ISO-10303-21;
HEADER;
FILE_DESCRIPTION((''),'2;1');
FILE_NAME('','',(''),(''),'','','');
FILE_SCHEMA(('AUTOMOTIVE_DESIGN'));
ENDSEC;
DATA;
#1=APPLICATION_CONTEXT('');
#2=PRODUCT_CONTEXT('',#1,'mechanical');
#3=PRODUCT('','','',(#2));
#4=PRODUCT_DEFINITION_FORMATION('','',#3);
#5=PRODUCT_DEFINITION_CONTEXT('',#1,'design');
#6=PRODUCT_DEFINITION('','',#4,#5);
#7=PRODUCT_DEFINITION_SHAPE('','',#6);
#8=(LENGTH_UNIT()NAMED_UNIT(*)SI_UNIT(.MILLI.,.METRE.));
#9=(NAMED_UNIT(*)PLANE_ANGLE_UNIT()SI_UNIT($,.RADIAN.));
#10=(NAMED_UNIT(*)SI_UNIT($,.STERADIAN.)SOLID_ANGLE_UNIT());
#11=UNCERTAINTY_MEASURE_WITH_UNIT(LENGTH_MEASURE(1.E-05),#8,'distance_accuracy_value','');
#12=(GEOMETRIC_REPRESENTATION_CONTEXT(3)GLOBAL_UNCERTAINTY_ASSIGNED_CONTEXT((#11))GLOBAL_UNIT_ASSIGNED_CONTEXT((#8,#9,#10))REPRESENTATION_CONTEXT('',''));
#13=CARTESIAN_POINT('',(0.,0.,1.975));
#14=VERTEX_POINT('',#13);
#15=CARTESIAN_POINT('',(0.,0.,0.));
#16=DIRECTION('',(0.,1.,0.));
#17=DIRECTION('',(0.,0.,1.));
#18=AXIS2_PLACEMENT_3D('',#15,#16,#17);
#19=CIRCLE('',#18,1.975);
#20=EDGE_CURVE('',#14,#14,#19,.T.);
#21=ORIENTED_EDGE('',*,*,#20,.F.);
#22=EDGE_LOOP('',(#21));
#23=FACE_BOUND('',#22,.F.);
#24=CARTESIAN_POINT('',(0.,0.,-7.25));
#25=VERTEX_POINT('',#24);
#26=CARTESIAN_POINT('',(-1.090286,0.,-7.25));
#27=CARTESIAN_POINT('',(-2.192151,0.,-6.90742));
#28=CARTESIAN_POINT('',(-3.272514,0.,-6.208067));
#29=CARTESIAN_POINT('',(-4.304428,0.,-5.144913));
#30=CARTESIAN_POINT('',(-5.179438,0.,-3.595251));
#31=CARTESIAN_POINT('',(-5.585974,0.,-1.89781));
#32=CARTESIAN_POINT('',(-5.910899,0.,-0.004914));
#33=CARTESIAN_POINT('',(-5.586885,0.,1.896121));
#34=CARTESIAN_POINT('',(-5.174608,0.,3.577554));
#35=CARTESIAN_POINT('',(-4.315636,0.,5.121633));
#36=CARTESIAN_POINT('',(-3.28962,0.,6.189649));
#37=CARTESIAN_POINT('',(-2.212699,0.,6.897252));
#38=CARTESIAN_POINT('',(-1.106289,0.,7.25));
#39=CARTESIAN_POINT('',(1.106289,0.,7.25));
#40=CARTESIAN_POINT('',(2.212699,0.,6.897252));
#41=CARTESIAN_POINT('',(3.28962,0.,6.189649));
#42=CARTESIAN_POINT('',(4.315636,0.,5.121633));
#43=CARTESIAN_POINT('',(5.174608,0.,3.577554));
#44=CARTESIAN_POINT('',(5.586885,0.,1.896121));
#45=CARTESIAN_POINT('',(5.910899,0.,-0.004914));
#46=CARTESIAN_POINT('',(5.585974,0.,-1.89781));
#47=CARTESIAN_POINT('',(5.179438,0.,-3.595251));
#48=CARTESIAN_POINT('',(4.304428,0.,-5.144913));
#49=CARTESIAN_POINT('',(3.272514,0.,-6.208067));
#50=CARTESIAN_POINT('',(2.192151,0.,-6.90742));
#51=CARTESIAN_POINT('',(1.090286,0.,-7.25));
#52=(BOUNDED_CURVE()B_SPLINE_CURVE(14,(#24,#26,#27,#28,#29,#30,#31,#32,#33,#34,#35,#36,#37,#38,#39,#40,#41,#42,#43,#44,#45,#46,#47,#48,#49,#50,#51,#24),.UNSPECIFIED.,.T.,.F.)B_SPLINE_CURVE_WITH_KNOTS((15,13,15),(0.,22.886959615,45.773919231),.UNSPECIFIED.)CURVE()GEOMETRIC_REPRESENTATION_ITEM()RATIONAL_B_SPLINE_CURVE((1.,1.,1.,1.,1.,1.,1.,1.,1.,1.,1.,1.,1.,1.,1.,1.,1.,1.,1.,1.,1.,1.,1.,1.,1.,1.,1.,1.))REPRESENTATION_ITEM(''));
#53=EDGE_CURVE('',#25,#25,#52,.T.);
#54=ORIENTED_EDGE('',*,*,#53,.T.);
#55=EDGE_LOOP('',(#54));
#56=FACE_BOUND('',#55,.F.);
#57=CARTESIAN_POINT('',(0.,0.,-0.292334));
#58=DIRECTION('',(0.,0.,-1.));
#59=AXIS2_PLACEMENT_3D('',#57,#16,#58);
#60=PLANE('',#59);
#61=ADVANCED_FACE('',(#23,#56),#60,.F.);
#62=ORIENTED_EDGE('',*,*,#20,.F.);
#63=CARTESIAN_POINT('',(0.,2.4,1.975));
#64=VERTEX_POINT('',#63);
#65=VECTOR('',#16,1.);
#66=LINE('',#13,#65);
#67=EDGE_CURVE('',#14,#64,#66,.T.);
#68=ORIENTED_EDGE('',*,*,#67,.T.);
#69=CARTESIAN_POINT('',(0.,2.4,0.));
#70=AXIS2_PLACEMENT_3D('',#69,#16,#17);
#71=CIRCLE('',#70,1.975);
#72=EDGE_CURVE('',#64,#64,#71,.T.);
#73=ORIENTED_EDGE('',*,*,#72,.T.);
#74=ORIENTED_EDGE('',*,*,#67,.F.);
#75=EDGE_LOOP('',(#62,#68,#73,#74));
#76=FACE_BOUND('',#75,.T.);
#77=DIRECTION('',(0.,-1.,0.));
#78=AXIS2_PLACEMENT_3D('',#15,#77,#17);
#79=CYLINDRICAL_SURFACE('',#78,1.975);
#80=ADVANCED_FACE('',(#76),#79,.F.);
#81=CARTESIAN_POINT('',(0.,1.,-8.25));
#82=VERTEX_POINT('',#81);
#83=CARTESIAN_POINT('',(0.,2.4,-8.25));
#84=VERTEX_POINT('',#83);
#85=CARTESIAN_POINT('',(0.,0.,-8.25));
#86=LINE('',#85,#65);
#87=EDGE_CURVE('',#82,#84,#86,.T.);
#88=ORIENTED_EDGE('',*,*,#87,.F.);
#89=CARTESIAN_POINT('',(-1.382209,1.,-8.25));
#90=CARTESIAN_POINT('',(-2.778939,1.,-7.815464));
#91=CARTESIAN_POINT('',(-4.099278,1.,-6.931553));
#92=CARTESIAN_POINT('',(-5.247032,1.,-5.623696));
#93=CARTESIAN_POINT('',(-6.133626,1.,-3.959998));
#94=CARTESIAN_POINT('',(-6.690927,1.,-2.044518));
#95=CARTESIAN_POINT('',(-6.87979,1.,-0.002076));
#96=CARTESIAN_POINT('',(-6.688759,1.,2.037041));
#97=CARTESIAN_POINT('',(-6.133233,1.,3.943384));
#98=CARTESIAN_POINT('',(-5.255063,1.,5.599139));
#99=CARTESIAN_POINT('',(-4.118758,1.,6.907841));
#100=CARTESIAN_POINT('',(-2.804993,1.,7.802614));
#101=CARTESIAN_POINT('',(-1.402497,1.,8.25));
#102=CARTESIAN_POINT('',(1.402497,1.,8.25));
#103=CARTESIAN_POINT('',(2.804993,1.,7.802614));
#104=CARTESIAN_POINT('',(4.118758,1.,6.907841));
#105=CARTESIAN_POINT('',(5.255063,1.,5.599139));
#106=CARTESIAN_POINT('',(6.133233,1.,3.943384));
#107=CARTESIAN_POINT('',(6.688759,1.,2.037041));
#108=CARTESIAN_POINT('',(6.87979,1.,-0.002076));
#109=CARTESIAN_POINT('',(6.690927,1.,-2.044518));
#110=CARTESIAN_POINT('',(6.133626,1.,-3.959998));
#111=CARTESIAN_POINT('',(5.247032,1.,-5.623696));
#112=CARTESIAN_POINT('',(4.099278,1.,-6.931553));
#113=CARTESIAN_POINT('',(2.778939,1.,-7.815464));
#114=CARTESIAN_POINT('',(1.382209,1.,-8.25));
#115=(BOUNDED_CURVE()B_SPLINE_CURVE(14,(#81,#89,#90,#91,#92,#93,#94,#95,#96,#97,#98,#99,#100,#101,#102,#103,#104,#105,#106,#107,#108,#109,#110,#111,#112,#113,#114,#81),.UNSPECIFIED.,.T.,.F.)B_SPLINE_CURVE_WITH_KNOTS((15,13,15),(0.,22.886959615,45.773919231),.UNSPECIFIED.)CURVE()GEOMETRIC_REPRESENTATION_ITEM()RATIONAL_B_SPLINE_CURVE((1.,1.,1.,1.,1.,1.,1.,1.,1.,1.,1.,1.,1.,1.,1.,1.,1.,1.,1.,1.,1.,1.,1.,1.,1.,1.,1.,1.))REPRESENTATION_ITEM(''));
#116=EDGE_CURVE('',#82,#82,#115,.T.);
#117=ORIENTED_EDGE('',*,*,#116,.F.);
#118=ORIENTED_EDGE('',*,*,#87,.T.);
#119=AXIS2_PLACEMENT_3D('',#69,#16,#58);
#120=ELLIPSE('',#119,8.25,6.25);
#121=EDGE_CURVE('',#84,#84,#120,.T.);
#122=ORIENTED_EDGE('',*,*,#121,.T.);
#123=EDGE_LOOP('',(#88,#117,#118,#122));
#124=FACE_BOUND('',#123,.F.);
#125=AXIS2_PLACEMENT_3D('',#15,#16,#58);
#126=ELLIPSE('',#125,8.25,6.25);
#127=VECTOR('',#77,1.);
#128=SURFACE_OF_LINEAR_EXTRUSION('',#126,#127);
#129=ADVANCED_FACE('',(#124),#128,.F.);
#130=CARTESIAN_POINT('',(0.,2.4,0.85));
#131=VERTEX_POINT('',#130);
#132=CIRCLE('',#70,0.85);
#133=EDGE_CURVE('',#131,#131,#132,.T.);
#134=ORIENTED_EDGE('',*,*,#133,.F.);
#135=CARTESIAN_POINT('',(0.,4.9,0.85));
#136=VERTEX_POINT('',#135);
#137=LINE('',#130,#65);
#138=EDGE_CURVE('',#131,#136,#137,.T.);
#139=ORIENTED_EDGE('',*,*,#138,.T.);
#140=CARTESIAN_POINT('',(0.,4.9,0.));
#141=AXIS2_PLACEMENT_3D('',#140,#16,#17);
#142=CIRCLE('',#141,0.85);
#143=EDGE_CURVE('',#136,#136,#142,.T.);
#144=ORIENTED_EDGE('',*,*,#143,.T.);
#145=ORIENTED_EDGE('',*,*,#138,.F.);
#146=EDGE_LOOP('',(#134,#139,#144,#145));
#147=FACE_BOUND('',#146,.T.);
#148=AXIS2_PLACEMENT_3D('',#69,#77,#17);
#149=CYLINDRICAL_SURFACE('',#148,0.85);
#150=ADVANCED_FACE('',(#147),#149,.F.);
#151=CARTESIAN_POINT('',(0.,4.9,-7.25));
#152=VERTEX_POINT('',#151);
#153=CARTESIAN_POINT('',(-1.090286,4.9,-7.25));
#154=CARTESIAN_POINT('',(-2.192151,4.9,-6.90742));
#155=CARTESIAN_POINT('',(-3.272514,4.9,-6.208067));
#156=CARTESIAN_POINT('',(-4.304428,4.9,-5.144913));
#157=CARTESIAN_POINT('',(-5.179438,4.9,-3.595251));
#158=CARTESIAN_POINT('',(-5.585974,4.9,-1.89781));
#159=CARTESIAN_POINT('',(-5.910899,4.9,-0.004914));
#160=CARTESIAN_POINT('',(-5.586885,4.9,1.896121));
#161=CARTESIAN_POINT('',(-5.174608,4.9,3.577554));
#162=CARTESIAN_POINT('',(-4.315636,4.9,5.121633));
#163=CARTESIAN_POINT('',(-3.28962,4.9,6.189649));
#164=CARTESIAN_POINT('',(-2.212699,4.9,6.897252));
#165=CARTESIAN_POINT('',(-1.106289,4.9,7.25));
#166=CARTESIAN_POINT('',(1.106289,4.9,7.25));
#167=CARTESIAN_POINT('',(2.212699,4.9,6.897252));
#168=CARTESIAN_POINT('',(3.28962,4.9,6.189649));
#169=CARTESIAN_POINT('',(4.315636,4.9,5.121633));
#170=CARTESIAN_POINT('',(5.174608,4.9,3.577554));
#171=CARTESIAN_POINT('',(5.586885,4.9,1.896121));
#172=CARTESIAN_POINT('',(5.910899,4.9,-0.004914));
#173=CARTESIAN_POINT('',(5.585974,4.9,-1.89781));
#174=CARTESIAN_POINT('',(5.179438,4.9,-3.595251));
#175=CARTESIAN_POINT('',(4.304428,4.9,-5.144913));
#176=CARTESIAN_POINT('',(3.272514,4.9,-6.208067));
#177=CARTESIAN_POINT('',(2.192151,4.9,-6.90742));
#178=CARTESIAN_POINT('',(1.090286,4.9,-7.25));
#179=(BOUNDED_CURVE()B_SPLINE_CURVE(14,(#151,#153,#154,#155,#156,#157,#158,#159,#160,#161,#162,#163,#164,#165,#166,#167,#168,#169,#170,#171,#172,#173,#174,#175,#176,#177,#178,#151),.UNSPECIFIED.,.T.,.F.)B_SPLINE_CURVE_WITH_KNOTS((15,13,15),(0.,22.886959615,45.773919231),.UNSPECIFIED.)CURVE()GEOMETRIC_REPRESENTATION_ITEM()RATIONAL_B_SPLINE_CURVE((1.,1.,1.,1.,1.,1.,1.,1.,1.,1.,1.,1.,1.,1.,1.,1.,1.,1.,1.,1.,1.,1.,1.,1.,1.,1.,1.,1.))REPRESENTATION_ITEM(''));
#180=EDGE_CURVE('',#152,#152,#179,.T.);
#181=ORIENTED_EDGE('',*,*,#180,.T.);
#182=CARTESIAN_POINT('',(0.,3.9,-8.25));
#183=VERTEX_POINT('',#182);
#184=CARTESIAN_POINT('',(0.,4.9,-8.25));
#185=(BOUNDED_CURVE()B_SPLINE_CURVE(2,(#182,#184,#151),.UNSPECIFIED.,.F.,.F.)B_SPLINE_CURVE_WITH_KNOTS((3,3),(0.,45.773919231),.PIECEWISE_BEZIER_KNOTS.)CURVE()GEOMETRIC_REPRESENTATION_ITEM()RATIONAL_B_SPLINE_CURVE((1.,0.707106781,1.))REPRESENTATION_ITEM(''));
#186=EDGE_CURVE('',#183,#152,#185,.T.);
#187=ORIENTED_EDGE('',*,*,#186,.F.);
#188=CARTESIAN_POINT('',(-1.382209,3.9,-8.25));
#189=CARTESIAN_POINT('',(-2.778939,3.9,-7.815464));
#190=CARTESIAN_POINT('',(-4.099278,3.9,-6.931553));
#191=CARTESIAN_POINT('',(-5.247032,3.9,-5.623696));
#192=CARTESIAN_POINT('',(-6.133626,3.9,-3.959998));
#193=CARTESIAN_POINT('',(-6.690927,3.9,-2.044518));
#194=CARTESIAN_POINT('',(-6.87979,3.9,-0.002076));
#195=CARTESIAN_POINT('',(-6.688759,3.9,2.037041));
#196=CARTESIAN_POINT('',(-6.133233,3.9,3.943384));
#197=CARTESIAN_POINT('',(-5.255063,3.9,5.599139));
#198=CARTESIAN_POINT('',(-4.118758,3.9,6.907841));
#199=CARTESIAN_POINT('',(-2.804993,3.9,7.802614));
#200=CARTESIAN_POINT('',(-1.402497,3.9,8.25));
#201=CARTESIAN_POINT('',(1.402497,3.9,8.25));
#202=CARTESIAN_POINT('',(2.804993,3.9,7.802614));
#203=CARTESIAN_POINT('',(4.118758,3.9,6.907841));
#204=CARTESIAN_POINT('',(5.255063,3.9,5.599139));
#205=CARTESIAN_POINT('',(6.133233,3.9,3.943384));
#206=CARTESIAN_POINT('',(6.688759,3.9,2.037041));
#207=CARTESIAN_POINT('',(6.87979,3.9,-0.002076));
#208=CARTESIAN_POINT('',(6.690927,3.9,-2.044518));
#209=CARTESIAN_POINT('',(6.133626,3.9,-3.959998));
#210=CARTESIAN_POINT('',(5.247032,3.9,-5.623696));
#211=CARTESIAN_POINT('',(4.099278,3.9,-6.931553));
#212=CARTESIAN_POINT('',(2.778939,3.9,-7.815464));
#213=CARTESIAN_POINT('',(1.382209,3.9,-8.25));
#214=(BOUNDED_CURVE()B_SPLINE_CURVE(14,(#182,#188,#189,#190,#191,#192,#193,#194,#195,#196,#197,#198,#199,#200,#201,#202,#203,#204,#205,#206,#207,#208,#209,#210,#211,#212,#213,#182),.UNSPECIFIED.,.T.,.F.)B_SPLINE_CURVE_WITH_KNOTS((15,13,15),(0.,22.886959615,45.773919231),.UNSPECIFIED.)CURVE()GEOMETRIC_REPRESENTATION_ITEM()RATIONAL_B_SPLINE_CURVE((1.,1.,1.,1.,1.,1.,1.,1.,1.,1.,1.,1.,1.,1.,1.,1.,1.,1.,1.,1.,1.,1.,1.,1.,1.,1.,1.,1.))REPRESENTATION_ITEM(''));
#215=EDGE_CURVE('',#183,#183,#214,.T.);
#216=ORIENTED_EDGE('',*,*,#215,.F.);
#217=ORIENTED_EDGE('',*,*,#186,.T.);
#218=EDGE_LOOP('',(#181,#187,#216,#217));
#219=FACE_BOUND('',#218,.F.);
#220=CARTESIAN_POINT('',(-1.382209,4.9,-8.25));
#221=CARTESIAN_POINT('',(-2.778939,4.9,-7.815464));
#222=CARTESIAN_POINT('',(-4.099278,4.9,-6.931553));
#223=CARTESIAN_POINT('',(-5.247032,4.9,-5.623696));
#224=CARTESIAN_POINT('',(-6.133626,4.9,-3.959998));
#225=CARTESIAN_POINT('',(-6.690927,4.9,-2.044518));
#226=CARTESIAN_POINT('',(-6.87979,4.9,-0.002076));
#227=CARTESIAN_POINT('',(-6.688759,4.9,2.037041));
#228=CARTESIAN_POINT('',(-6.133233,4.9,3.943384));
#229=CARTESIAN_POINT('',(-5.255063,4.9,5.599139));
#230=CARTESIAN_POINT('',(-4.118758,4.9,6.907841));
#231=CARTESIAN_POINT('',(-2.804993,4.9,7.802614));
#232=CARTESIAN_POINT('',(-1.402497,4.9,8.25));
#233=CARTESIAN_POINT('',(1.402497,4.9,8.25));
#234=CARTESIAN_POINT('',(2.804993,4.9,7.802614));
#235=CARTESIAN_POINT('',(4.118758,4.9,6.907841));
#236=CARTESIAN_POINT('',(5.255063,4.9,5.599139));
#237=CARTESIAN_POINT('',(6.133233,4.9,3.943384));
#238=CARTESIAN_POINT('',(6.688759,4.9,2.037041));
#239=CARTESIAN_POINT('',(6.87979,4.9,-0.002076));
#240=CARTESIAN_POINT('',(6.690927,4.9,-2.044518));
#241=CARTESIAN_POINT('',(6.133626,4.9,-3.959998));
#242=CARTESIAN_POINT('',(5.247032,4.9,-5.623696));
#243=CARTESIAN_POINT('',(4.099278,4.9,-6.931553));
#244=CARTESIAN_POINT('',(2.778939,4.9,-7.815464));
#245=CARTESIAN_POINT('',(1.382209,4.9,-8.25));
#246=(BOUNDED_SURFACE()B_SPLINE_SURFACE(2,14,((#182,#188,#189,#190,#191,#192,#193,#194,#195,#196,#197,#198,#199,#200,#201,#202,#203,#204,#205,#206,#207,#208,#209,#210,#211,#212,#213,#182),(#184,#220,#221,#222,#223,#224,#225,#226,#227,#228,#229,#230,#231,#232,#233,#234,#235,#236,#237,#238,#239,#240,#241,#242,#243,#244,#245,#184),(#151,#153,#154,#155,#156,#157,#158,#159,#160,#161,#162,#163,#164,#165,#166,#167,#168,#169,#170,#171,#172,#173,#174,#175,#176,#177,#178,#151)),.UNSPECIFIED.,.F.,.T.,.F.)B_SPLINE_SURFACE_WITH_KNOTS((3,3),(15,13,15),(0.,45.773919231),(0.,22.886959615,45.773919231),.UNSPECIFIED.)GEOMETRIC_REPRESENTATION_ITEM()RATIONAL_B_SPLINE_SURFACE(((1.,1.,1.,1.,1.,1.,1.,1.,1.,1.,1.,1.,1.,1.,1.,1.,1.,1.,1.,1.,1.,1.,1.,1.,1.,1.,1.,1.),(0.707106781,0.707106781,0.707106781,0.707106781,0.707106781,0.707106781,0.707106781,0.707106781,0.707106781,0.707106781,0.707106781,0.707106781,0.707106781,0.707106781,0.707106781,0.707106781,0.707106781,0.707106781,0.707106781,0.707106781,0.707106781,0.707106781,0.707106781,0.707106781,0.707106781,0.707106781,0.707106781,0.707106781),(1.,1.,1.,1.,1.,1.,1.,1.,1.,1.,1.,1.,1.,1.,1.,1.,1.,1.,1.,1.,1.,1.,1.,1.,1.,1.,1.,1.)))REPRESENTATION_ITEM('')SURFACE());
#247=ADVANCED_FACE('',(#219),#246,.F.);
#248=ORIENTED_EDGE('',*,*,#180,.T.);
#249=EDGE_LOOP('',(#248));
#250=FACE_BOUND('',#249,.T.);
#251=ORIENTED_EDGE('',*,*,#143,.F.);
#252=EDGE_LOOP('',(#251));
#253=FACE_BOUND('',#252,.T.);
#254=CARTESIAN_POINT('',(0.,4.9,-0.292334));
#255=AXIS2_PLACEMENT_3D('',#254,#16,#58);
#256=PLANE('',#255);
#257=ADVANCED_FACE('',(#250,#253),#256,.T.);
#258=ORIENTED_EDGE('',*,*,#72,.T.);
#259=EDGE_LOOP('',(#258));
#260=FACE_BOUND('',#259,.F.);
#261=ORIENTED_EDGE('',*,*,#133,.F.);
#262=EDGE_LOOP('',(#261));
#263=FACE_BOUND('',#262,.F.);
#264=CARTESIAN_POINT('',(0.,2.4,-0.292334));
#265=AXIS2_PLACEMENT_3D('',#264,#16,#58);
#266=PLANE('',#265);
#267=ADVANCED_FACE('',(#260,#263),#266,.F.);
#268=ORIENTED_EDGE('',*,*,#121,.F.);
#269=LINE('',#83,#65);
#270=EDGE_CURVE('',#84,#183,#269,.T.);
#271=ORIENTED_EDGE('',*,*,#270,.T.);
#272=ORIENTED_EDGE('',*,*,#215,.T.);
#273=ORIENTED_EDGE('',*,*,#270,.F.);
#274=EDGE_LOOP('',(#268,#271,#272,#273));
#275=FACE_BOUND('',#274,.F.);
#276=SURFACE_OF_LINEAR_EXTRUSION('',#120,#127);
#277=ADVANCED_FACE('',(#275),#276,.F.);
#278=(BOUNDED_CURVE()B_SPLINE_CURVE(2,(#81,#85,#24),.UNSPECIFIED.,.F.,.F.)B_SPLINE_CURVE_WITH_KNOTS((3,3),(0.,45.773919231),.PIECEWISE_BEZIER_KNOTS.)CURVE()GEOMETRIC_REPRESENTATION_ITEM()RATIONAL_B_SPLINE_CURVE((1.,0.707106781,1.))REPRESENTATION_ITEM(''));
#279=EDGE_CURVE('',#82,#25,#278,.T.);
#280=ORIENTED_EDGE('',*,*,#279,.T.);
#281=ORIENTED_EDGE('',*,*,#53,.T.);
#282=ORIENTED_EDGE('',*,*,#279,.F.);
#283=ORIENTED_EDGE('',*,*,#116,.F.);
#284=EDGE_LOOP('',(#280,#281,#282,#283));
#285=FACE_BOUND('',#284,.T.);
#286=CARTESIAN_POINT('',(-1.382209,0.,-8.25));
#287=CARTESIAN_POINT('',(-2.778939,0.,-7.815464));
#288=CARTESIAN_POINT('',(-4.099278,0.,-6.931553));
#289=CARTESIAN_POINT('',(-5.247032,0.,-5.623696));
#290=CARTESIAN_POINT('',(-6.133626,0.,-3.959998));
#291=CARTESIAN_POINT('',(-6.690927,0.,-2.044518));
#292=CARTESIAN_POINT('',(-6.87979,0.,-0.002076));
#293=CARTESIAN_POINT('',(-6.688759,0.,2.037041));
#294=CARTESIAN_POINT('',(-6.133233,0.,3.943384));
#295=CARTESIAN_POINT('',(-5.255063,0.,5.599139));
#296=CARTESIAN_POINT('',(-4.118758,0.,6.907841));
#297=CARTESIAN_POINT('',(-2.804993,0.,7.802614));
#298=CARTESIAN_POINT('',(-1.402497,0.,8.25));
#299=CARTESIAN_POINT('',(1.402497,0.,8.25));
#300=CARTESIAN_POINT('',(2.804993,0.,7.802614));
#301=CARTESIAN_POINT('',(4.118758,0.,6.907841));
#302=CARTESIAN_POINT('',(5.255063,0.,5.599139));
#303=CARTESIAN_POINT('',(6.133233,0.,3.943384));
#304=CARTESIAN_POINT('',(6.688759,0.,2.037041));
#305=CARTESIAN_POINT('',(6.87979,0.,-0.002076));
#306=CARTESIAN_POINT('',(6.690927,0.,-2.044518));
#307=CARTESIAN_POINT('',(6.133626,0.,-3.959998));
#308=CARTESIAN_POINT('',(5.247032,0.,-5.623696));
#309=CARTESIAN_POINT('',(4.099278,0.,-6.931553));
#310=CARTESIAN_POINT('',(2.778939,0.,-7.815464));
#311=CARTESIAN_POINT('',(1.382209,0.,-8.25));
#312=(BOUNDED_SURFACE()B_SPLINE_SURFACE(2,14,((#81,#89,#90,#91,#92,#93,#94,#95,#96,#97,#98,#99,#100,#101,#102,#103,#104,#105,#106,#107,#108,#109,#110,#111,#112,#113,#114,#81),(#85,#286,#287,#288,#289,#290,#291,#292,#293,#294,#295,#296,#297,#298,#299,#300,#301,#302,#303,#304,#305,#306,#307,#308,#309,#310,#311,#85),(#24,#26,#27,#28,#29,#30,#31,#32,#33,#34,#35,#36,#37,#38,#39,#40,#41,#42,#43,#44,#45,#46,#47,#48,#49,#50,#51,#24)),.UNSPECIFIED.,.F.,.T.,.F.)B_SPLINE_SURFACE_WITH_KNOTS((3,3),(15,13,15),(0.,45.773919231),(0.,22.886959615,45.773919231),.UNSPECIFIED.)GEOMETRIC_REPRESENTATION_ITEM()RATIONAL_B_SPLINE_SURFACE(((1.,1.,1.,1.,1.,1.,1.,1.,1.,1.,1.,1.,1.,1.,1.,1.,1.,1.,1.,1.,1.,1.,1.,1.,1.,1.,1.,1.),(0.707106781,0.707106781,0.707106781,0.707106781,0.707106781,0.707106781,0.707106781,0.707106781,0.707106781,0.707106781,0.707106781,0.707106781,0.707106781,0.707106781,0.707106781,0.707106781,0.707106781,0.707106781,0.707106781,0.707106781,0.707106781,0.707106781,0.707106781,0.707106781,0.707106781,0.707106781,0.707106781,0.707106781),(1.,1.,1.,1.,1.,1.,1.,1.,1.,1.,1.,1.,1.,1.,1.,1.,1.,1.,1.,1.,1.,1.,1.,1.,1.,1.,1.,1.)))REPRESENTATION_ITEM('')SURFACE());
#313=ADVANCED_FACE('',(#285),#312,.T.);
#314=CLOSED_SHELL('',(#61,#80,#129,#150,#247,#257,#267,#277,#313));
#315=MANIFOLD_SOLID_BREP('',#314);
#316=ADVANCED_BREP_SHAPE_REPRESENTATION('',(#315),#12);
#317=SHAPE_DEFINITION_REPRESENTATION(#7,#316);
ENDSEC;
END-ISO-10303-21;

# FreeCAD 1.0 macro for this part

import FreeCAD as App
import Part
import Sketcher
from FreeCAD import Vector


def edges_at(feature, points):
    """Names of the edges that pass closest to the given points."""
    edges = feature.Shape.Edges
    near = lambda p: min(range(len(edges)), key=lambda i: edges[i].distToShape(Part.Vertex(*p))[0])
    return sorted({f"Edge{near(p) + 1}" for p in points})

doc = App.newDocument("Part")
body = doc.addObject("PartDesign::Body", "Body")

# Sketch on XZ plane
sketch1 = body.newObject("Sketcher::SketchObject", "Sketch")
sketch1.AttachmentSupport = (doc.getObject("XZ_Plane"), [""])
sketch1.MapMode = "FlatFace"
sketch1.addGeometry([
    Part.Ellipse(Vector(0, -8.25, 0), Vector(6.25, 0, 0), Vector(0, 0, 0)),
    Part.Circle(Vector(0, 0, 0), Vector(0, 0, 1), 1.975),
], False)
sketch1.addConstraint([
    Sketcher.Constraint("Block", 0),
    Sketcher.Constraint("Coincident", 1, 3, -1, 1),
    Sketcher.Constraint("Diameter", 1, 3.95),
])
pad1 = body.newObject("PartDesign::Pad", "Pad")
pad1.Profile = sketch1
pad1.Length = 2.4
pad1.Reversed = True

# Sketch on XZ plane
sketch2 = body.newObject("Sketcher::SketchObject", "Sketch001")
sketch2.AttachmentSupport = (doc.getObject("XZ_Plane"), [""])
sketch2.MapMode = "FlatFace"
sketch2.AttachmentOffset = App.Placement(Vector(0, 0, -2.4), App.Rotation())
sketch2.addGeometry([
    Part.Ellipse(Vector(0, -8.25, 0), Vector(6.25, 0, 0), Vector(0, 0, 0)),
    Part.Circle(Vector(0, 0, 0), Vector(0, 0, 1), 0.85),
], False)
sketch2.addConstraint([
    Sketcher.Constraint("Block", 0),
    Sketcher.Constraint("Coincident", 1, 3, -1, 1),
    Sketcher.Constraint("Diameter", 1, 1.7),
])
pad2 = body.newObject("PartDesign::Pad", "Pad001")
pad2.Profile = sketch2
pad2.Length = 2.5
pad2.Reversed = True
doc.recompute()

fillet = body.newObject("PartDesign::Fillet", "Fillet")
fillet.Base = (pad2, edges_at(pad2, [(0.002, 4.9, 8.25), (0.002, 0, 8.25)]))
fillet.Radius = 1

doc.recompute()
